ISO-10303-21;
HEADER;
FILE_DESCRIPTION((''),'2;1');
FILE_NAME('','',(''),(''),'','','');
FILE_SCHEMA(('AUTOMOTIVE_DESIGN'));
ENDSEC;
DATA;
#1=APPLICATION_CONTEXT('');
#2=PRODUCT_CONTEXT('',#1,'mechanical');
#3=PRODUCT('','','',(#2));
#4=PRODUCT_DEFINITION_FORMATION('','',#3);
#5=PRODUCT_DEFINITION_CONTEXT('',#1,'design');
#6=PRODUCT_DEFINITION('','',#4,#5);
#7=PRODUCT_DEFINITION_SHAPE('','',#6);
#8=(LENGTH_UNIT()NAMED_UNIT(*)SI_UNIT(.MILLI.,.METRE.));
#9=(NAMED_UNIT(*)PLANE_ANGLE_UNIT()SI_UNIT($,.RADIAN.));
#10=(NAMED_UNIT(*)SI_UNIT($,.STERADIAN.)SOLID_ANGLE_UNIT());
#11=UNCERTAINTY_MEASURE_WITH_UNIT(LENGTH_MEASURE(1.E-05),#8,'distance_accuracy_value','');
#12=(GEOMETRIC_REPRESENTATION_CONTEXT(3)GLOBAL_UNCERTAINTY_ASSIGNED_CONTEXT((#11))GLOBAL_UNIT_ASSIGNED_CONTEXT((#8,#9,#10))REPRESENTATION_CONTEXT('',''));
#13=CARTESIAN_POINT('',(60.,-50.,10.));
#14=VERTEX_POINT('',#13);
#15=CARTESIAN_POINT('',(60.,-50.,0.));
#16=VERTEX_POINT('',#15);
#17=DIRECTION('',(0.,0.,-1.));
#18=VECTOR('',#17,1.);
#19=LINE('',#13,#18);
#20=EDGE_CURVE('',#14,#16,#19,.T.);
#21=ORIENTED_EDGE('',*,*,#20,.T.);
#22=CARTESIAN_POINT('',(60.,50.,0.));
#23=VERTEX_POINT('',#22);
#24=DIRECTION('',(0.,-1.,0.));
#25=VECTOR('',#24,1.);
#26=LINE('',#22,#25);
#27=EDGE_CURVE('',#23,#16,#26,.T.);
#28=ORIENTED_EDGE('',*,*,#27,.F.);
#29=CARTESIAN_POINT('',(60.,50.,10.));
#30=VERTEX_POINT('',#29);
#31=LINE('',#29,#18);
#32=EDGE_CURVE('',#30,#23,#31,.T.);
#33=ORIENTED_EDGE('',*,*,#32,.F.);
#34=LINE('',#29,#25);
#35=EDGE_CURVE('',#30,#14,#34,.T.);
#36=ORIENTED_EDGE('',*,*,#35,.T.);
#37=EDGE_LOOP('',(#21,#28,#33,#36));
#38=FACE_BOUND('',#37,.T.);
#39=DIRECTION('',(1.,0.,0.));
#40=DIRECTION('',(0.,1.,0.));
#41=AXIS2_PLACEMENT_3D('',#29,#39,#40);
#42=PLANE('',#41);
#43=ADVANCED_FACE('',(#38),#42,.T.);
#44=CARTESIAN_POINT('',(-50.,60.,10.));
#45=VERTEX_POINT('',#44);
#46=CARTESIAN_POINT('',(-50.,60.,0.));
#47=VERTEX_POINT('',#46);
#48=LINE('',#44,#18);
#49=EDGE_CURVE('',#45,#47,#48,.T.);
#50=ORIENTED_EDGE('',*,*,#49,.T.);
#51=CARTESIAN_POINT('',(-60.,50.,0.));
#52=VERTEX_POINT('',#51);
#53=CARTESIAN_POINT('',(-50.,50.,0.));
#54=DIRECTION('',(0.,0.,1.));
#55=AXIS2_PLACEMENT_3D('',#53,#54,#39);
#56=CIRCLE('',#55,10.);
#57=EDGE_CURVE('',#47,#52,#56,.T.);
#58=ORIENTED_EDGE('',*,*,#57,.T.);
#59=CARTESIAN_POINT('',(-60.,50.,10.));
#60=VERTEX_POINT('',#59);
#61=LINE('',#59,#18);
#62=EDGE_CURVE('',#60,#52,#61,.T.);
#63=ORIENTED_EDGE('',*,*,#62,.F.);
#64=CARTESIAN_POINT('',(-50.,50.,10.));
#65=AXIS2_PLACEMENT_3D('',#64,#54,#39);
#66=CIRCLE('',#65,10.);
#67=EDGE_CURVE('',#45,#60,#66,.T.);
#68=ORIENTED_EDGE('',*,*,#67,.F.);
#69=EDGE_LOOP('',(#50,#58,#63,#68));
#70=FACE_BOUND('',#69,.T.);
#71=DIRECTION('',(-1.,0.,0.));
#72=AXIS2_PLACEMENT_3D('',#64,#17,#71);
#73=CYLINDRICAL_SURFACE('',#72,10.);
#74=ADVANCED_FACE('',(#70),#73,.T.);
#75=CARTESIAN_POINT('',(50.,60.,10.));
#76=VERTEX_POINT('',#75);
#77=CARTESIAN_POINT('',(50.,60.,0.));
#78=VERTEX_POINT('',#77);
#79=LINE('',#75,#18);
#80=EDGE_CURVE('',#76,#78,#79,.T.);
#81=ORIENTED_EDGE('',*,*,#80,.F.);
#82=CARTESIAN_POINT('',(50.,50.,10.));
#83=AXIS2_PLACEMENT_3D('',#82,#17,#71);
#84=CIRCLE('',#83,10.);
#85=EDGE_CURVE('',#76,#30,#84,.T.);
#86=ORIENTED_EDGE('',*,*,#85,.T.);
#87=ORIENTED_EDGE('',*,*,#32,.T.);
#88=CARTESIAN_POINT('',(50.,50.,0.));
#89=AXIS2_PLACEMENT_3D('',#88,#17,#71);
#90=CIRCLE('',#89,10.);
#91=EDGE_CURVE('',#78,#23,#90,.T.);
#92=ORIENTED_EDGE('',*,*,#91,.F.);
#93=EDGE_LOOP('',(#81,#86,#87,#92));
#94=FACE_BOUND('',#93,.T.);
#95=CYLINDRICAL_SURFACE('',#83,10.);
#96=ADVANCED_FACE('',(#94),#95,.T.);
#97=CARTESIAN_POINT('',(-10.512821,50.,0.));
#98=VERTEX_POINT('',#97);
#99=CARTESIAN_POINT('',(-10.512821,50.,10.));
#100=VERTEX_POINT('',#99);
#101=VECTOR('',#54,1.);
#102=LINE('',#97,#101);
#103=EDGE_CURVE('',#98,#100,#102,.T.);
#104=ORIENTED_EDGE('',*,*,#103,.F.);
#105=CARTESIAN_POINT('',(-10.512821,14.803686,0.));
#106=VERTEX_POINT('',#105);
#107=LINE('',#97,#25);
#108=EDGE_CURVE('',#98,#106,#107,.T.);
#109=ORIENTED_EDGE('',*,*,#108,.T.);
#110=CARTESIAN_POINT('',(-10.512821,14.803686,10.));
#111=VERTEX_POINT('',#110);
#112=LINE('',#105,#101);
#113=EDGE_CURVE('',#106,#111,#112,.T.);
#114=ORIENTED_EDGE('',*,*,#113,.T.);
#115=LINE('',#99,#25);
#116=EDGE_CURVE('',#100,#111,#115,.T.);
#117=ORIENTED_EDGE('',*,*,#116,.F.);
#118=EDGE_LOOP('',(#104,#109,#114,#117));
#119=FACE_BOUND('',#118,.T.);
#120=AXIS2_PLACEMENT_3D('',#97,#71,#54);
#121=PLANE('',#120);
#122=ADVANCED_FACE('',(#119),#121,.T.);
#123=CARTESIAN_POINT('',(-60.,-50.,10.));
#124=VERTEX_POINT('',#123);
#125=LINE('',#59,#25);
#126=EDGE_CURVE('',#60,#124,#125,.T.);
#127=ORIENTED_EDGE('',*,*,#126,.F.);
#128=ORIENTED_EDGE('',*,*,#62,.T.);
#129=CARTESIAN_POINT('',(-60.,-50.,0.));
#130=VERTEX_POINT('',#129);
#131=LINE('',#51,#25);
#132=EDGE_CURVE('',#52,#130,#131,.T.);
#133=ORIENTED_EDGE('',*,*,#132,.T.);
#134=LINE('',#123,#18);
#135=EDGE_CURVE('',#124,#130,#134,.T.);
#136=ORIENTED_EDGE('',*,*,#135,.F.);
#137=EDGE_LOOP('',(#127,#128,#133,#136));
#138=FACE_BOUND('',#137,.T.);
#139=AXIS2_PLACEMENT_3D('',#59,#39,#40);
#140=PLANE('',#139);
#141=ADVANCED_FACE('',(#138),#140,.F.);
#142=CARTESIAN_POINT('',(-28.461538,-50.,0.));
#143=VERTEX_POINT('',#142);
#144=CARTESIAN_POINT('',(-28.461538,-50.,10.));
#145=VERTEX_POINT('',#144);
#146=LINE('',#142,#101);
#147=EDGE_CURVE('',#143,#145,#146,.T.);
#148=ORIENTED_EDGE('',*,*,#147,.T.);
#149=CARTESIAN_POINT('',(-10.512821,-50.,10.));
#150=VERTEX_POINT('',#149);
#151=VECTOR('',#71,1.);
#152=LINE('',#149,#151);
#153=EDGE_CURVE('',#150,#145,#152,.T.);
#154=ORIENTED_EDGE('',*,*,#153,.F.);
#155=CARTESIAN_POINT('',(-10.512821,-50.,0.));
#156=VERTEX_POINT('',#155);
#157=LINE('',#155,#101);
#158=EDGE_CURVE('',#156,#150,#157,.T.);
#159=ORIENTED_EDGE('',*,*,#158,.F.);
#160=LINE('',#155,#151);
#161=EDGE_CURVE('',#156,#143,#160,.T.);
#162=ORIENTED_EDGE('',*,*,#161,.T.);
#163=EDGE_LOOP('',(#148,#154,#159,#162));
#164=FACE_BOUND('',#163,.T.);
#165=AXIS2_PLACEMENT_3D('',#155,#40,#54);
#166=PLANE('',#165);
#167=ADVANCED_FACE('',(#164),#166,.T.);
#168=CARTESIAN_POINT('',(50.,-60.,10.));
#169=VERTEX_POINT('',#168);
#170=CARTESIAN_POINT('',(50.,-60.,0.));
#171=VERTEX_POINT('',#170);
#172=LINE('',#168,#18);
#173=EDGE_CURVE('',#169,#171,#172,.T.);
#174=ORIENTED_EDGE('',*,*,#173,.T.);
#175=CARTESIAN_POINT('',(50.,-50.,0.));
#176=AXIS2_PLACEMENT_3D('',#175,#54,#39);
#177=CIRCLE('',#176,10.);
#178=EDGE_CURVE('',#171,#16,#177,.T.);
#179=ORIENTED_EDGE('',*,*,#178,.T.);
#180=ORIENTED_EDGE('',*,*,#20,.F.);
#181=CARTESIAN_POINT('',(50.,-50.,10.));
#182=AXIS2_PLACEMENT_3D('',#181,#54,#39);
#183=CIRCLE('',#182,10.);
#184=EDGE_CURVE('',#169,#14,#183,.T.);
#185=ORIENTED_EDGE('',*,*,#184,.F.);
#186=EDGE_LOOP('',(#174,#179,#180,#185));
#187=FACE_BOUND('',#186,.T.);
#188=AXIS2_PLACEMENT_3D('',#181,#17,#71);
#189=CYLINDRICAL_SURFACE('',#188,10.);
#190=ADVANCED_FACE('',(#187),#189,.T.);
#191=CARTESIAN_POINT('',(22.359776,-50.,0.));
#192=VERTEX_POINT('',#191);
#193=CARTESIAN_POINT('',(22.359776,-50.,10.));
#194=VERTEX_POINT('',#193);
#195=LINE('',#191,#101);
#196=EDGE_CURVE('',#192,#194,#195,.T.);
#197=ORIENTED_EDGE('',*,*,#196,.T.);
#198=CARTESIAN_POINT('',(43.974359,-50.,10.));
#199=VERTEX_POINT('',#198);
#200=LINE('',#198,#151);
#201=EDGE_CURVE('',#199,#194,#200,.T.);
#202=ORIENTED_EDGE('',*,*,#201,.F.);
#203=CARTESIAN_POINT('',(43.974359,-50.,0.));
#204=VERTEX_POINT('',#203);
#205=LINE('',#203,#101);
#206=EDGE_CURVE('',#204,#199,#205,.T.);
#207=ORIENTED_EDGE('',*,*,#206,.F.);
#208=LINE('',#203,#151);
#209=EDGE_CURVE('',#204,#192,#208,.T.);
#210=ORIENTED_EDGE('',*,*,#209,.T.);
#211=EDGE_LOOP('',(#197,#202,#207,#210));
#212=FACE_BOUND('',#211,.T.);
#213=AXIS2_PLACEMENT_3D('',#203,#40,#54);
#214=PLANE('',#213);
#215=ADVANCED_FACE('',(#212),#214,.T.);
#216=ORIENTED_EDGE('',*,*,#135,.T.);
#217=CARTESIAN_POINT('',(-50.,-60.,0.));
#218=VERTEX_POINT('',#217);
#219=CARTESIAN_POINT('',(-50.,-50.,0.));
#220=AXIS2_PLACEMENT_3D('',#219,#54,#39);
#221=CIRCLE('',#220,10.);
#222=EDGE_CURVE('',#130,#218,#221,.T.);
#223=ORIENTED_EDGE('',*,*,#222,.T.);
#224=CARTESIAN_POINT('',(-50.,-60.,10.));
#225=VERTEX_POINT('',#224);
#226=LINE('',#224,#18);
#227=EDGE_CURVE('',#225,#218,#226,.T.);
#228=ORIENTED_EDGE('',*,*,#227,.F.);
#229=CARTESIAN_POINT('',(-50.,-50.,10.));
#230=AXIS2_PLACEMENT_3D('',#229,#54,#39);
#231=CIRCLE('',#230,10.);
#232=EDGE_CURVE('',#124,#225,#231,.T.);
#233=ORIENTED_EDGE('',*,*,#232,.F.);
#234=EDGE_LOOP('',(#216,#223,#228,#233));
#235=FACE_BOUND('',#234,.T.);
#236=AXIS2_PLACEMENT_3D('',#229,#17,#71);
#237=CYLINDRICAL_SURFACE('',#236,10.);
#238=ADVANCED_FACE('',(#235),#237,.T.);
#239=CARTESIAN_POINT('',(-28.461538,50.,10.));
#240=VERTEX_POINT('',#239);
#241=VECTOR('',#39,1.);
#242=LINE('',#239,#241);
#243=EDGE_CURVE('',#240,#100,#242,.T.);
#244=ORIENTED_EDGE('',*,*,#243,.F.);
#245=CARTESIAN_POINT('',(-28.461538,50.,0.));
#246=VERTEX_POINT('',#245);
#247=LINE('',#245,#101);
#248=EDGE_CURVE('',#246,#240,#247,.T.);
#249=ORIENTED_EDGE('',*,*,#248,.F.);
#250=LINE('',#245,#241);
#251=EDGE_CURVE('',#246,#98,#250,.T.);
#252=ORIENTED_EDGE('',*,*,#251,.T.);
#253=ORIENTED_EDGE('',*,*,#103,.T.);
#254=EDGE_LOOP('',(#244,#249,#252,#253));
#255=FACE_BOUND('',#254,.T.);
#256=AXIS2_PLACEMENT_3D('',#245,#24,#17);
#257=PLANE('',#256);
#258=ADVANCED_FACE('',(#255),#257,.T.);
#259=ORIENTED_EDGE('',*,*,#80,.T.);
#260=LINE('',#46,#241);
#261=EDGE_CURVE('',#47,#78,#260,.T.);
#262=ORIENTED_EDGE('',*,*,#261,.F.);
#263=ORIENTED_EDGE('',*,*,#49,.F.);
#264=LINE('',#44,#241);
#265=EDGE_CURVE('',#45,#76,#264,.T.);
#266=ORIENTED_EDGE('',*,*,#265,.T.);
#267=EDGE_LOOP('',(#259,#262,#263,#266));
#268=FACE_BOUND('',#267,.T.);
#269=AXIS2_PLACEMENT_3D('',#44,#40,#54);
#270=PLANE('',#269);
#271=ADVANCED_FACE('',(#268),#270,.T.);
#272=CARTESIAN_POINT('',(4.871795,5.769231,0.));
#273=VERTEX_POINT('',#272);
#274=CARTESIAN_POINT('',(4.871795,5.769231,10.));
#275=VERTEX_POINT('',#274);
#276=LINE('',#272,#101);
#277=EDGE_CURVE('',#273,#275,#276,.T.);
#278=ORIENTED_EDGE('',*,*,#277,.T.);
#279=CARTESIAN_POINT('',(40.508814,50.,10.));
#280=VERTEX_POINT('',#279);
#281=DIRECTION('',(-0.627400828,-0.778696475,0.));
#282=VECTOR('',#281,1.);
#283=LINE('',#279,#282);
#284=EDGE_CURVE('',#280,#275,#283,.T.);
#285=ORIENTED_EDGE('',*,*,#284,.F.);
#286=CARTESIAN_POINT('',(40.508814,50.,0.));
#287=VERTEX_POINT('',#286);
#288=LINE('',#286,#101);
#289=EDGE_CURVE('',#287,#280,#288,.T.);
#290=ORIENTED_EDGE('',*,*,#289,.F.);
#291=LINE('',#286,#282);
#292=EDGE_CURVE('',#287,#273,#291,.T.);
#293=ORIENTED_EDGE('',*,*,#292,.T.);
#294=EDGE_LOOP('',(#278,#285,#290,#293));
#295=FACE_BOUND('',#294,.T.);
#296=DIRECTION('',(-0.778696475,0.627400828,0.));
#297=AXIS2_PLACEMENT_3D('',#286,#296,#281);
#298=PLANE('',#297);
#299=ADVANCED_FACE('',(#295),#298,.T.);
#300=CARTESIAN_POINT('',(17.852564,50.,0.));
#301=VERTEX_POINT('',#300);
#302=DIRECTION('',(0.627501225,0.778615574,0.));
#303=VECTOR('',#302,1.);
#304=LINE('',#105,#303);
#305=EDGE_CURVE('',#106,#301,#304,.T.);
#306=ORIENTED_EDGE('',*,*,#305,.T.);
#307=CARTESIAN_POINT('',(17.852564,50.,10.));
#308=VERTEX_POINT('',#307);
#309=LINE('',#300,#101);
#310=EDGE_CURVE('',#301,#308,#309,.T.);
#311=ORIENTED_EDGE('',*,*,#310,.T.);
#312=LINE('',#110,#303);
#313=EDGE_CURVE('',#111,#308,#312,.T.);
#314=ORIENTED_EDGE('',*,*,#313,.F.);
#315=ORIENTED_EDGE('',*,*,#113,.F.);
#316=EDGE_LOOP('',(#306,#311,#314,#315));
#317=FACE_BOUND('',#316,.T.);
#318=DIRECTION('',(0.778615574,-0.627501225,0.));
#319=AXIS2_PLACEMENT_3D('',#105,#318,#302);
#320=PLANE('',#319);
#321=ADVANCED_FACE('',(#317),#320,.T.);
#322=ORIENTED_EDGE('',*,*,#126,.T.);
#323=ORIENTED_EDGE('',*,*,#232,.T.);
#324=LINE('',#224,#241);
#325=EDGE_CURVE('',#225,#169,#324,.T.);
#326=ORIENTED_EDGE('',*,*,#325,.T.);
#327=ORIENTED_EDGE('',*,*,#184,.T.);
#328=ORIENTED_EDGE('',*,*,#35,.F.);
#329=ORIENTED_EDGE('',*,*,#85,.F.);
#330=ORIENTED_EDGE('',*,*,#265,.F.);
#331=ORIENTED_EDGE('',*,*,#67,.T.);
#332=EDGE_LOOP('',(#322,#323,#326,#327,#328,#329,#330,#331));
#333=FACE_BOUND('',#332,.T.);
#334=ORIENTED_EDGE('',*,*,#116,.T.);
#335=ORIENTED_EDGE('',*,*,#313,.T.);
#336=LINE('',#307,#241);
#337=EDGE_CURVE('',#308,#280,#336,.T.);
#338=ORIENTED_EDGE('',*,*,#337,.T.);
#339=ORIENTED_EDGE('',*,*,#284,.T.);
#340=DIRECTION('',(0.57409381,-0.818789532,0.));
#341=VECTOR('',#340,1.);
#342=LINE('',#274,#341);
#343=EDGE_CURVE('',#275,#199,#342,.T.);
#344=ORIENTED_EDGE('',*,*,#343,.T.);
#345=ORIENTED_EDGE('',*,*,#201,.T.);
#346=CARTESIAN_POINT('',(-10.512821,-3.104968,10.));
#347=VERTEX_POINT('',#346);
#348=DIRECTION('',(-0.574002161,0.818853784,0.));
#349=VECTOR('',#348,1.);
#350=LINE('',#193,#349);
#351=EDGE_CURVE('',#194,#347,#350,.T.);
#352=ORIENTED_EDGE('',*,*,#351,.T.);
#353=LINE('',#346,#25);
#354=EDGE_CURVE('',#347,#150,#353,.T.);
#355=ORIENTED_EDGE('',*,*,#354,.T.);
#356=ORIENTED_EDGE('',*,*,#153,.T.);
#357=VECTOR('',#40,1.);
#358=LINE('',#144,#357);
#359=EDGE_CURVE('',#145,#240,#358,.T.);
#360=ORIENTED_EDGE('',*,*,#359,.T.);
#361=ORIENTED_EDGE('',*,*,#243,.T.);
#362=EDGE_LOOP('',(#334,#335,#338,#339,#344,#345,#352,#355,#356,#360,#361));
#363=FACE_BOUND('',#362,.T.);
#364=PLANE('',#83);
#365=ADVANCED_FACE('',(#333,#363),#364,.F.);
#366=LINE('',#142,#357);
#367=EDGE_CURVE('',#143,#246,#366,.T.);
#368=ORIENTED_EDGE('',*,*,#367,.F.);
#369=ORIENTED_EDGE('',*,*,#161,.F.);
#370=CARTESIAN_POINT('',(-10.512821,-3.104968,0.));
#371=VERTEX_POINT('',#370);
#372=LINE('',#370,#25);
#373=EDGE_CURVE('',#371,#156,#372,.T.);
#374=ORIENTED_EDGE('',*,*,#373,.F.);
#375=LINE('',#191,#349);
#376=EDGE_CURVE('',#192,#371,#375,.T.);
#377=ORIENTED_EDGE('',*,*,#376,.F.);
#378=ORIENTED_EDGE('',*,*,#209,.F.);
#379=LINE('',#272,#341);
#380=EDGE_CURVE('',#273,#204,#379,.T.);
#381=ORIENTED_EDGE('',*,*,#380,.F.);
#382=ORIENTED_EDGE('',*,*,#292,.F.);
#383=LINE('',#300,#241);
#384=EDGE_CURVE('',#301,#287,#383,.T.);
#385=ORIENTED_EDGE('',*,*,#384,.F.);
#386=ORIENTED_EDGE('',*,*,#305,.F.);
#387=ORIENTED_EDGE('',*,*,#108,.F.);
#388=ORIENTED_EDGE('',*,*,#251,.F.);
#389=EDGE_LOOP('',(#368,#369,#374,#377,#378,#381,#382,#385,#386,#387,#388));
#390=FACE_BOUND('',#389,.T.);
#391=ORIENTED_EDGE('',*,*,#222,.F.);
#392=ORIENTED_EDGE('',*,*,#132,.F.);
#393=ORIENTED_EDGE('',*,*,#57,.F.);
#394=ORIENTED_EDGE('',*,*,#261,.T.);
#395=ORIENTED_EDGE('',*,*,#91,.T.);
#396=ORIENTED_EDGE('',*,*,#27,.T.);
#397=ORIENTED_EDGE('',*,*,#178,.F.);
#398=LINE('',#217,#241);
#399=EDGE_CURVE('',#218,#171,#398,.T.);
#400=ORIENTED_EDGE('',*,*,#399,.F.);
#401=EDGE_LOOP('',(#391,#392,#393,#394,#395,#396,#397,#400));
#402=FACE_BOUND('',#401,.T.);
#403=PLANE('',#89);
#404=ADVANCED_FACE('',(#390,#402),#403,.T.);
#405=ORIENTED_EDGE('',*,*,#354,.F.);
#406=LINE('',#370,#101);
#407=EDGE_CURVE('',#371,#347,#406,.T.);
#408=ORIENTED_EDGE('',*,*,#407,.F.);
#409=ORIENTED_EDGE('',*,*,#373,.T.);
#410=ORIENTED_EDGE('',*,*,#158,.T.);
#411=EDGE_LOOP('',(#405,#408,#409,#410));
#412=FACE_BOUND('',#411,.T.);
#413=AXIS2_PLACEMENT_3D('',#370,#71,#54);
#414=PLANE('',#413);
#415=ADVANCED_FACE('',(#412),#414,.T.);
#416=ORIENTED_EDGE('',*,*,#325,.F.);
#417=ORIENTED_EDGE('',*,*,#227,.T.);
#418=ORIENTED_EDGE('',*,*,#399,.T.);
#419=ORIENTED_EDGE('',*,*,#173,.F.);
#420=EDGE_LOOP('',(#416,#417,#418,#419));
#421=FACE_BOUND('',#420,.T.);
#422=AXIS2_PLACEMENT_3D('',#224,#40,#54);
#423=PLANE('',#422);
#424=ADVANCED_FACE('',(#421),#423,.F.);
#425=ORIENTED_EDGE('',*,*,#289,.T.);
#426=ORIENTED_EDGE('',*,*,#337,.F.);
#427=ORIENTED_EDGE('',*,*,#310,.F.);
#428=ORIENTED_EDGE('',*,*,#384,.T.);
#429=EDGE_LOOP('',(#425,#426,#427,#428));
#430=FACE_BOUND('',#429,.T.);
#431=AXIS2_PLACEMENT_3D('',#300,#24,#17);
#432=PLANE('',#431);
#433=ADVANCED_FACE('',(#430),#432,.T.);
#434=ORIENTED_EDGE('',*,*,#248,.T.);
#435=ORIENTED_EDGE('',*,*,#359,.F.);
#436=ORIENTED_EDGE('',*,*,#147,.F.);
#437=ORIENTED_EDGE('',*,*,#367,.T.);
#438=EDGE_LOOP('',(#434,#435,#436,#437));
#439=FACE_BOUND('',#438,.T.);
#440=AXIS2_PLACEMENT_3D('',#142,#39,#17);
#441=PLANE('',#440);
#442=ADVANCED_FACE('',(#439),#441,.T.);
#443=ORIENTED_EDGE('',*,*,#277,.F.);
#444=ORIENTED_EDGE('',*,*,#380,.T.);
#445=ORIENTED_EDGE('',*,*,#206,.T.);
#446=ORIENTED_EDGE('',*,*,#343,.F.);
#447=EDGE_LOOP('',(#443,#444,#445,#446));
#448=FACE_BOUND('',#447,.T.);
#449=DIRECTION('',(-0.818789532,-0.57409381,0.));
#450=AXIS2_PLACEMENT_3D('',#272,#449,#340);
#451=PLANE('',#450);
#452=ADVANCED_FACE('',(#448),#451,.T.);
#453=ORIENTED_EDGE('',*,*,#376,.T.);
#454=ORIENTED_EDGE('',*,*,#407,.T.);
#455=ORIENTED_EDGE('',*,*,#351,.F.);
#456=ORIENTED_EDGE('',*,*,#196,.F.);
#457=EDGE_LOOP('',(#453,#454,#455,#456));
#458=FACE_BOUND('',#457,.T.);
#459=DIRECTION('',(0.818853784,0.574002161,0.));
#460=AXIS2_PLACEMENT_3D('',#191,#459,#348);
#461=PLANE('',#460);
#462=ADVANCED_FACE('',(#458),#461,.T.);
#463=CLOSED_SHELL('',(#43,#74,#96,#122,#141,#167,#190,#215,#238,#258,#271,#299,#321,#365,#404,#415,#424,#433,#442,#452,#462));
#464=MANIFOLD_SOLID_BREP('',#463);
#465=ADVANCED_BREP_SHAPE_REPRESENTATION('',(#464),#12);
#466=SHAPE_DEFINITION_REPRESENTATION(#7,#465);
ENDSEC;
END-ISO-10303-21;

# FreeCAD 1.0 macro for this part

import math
import FreeCAD as App
import Part
import Sketcher
Q = App.Units.Quantity

doc = App.newDocument("Part")
body = doc.addObject("PartDesign::Body", "Body")

sketch1 = body.newObject("Sketcher::SketchObject", "Sketch")
sketch1.AttachmentSupport = (doc.getObject("XY_Plane"), [""])
sketch1.MapMode = "FlatFace"
sketch1.addGeometry([
    Part.LineSegment(App.Vector(50, 60, 0), App.Vector(-50, 60, 0)),
    Part.ArcOfCircle(Part.Circle(App.Vector(-50, 50, 0), App.Vector(0, 0, 1), 10), math.radians(90), math.radians(180)),
    Part.LineSegment(App.Vector(-60, 50, 0), App.Vector(-60, -50, 0)),
    Part.ArcOfCircle(Part.Circle(App.Vector(-50, -50, 0), App.Vector(0, 0, 1), 10), math.radians(180), math.radians(270)),
    Part.LineSegment(App.Vector(-50, -60, 0), App.Vector(50, -60, 0)),
    Part.ArcOfCircle(Part.Circle(App.Vector(50, -50, 0), App.Vector(0, 0, 1), 10), math.radians(-90), math.radians(0)),
    Part.LineSegment(App.Vector(60, -50, 0), App.Vector(60, 50, 0)),
    Part.ArcOfCircle(Part.Circle(App.Vector(50, 50, 0), App.Vector(0, 0, 1), 10), math.radians(0), math.radians(90)),
], False)
sketch1.addConstraint([
    Sketcher.Constraint("Tangent", 0, 2, 1, 1),
    Sketcher.Constraint("Tangent", 1, 2, 2, 1),
    Sketcher.Constraint("Tangent", 2, 2, 3, 1),
    Sketcher.Constraint("Tangent", 3, 2, 4, 1),
    Sketcher.Constraint("Tangent", 4, 2, 5, 1),
    Sketcher.Constraint("Tangent", 5, 2, 6, 1),
    Sketcher.Constraint("Tangent", 6, 2, 7, 1),
    Sketcher.Constraint("Tangent", 7, 2, 0, 1),
    Sketcher.Constraint("Horizontal", 0),
    Sketcher.Constraint("Vertical", 2),
    Sketcher.Constraint("Horizontal", 4),
    Sketcher.Constraint("Vertical", 6),
    Sketcher.Constraint("Equal", 1, 3),
    Sketcher.Constraint("Equal", 3, 5),
    Sketcher.Constraint("Equal", 5, 7),
    Sketcher.Constraint("Symmetric", 1, 3, 5, 3, -1, 1),
    Sketcher.Constraint("Equal", 4, 2),
    Sketcher.Constraint("Radius", 1, Q("10 mm")),
    Sketcher.Constraint("DistanceX", 0, 2, 0, 1, Q("100 mm")),
])
pad1 = body.newObject("PartDesign::Pad", "Pad")
pad1.Profile = sketch1
pad1.Length = 10

sketch2 = body.newObject("Sketcher::SketchObject", "Sketch001")
sketch2.AttachmentSupport = (doc.getObject("XY_Plane"), [""])
sketch2.MapMode = "FlatFace"
sketch2.AttachmentOffset = App.Placement(App.Vector(0, 0, 10), App.Rotation())
sketch2.addGeometry([
    Part.LineSegment(App.Vector(-11, 50, 0), App.Vector(-28, 50, 0)),
    Part.LineSegment(App.Vector(-28, 50, 0), App.Vector(-28, -50, 0)),
    Part.LineSegment(App.Vector(-28, -50, 0), App.Vector(-11, -50, 0)),
    Part.LineSegment(App.Vector(-11, -50, 0), App.Vector(-11, -3, 0)),
    Part.LineSegment(App.Vector(-11, -3, 0), App.Vector(22, -50, 0)),
    Part.LineSegment(App.Vector(22, -50, 0), App.Vector(44, -50, 0)),
    Part.LineSegment(App.Vector(44, -50, 0), App.Vector(5, 6, 0)),
    Part.LineSegment(App.Vector(5, 6, 0), App.Vector(41, 50, 0)),
    Part.LineSegment(App.Vector(41, 50, 0), App.Vector(18, 50, 0)),
    Part.LineSegment(App.Vector(18, 50, 0), App.Vector(-11, 15, 0)),
    Part.LineSegment(App.Vector(-11, 15, 0), App.Vector(-11, 50, 0)),
], False)
sketch2.addConstraint([
    Sketcher.Constraint("Coincident", 0, 2, 1, 1),
    Sketcher.Constraint("Coincident", 1, 2, 2, 1),
    Sketcher.Constraint("Coincident", 2, 2, 3, 1),
    Sketcher.Constraint("Coincident", 3, 2, 4, 1),
    Sketcher.Constraint("Coincident", 4, 2, 5, 1),
    Sketcher.Constraint("Coincident", 5, 2, 6, 1),
    Sketcher.Constraint("Coincident", 6, 2, 7, 1),
    Sketcher.Constraint("Coincident", 7, 2, 8, 1),
    Sketcher.Constraint("Coincident", 8, 2, 9, 1),
    Sketcher.Constraint("Coincident", 9, 2, 10, 1),
    Sketcher.Constraint("Coincident", 10, 2, 0, 1),
    Sketcher.Constraint("Horizontal", 0),
    Sketcher.Constraint("Vertical", 1),
    Sketcher.Constraint("Horizontal", 2),
    Sketcher.Constraint("Vertical", 3),
    Sketcher.Constraint("Horizontal", 5),
    Sketcher.Constraint("Horizontal", 8),
    Sketcher.Constraint("Vertical", 10),
    Sketcher.Constraint("Symmetric", 2, 2, 10, 2, -1),
    Sketcher.Constraint("Horizontal", 2, 2, 4, 2),
    Sketcher.Constraint("Horizontal", 0, 2, 7, 2),
    Sketcher.Constraint("DistanceY", 1, 2, 1, 1, Q("100 mm")),
    Sketcher.Constraint("DistanceX", 8, 2, 8, 1, Q("22.65625 mm")),
    Sketcher.Constraint("DistanceY", 3, 2, 6, 2, Q("8.874199 mm")),
    Sketcher.Constraint("Distance", 7, Q("56.801039 mm")),
    Sketcher.Constraint("Distance", 9, Q("45.203712 mm")),
    Sketcher.Constraint("DistanceX", 0, 2, 0, 1, Q("17.948718 mm")),
    Sketcher.Constraint("DistanceX", 5, 1, 5, 2, Q("21.614583 mm")),
    Sketcher.Constraint("DistanceY", 3, 1, 3, 2, Q("46.895032 mm")),
    Sketcher.Constraint("DistanceY", 10, 1, 10, 2, Q("35.196314 mm")),
    Sketcher.Constraint("DistanceX", 0, 2, -1, 1, Q("28.461538 mm")),
    Sketcher.Constraint("DistanceX", -1, 1, 5, 2, Q("43.974359 mm")),
])
pocket1 = body.newObject("PartDesign::Pocket", "Pocket")
pocket1.Profile = sketch2
pocket1.Length = 10

doc.recompute()
